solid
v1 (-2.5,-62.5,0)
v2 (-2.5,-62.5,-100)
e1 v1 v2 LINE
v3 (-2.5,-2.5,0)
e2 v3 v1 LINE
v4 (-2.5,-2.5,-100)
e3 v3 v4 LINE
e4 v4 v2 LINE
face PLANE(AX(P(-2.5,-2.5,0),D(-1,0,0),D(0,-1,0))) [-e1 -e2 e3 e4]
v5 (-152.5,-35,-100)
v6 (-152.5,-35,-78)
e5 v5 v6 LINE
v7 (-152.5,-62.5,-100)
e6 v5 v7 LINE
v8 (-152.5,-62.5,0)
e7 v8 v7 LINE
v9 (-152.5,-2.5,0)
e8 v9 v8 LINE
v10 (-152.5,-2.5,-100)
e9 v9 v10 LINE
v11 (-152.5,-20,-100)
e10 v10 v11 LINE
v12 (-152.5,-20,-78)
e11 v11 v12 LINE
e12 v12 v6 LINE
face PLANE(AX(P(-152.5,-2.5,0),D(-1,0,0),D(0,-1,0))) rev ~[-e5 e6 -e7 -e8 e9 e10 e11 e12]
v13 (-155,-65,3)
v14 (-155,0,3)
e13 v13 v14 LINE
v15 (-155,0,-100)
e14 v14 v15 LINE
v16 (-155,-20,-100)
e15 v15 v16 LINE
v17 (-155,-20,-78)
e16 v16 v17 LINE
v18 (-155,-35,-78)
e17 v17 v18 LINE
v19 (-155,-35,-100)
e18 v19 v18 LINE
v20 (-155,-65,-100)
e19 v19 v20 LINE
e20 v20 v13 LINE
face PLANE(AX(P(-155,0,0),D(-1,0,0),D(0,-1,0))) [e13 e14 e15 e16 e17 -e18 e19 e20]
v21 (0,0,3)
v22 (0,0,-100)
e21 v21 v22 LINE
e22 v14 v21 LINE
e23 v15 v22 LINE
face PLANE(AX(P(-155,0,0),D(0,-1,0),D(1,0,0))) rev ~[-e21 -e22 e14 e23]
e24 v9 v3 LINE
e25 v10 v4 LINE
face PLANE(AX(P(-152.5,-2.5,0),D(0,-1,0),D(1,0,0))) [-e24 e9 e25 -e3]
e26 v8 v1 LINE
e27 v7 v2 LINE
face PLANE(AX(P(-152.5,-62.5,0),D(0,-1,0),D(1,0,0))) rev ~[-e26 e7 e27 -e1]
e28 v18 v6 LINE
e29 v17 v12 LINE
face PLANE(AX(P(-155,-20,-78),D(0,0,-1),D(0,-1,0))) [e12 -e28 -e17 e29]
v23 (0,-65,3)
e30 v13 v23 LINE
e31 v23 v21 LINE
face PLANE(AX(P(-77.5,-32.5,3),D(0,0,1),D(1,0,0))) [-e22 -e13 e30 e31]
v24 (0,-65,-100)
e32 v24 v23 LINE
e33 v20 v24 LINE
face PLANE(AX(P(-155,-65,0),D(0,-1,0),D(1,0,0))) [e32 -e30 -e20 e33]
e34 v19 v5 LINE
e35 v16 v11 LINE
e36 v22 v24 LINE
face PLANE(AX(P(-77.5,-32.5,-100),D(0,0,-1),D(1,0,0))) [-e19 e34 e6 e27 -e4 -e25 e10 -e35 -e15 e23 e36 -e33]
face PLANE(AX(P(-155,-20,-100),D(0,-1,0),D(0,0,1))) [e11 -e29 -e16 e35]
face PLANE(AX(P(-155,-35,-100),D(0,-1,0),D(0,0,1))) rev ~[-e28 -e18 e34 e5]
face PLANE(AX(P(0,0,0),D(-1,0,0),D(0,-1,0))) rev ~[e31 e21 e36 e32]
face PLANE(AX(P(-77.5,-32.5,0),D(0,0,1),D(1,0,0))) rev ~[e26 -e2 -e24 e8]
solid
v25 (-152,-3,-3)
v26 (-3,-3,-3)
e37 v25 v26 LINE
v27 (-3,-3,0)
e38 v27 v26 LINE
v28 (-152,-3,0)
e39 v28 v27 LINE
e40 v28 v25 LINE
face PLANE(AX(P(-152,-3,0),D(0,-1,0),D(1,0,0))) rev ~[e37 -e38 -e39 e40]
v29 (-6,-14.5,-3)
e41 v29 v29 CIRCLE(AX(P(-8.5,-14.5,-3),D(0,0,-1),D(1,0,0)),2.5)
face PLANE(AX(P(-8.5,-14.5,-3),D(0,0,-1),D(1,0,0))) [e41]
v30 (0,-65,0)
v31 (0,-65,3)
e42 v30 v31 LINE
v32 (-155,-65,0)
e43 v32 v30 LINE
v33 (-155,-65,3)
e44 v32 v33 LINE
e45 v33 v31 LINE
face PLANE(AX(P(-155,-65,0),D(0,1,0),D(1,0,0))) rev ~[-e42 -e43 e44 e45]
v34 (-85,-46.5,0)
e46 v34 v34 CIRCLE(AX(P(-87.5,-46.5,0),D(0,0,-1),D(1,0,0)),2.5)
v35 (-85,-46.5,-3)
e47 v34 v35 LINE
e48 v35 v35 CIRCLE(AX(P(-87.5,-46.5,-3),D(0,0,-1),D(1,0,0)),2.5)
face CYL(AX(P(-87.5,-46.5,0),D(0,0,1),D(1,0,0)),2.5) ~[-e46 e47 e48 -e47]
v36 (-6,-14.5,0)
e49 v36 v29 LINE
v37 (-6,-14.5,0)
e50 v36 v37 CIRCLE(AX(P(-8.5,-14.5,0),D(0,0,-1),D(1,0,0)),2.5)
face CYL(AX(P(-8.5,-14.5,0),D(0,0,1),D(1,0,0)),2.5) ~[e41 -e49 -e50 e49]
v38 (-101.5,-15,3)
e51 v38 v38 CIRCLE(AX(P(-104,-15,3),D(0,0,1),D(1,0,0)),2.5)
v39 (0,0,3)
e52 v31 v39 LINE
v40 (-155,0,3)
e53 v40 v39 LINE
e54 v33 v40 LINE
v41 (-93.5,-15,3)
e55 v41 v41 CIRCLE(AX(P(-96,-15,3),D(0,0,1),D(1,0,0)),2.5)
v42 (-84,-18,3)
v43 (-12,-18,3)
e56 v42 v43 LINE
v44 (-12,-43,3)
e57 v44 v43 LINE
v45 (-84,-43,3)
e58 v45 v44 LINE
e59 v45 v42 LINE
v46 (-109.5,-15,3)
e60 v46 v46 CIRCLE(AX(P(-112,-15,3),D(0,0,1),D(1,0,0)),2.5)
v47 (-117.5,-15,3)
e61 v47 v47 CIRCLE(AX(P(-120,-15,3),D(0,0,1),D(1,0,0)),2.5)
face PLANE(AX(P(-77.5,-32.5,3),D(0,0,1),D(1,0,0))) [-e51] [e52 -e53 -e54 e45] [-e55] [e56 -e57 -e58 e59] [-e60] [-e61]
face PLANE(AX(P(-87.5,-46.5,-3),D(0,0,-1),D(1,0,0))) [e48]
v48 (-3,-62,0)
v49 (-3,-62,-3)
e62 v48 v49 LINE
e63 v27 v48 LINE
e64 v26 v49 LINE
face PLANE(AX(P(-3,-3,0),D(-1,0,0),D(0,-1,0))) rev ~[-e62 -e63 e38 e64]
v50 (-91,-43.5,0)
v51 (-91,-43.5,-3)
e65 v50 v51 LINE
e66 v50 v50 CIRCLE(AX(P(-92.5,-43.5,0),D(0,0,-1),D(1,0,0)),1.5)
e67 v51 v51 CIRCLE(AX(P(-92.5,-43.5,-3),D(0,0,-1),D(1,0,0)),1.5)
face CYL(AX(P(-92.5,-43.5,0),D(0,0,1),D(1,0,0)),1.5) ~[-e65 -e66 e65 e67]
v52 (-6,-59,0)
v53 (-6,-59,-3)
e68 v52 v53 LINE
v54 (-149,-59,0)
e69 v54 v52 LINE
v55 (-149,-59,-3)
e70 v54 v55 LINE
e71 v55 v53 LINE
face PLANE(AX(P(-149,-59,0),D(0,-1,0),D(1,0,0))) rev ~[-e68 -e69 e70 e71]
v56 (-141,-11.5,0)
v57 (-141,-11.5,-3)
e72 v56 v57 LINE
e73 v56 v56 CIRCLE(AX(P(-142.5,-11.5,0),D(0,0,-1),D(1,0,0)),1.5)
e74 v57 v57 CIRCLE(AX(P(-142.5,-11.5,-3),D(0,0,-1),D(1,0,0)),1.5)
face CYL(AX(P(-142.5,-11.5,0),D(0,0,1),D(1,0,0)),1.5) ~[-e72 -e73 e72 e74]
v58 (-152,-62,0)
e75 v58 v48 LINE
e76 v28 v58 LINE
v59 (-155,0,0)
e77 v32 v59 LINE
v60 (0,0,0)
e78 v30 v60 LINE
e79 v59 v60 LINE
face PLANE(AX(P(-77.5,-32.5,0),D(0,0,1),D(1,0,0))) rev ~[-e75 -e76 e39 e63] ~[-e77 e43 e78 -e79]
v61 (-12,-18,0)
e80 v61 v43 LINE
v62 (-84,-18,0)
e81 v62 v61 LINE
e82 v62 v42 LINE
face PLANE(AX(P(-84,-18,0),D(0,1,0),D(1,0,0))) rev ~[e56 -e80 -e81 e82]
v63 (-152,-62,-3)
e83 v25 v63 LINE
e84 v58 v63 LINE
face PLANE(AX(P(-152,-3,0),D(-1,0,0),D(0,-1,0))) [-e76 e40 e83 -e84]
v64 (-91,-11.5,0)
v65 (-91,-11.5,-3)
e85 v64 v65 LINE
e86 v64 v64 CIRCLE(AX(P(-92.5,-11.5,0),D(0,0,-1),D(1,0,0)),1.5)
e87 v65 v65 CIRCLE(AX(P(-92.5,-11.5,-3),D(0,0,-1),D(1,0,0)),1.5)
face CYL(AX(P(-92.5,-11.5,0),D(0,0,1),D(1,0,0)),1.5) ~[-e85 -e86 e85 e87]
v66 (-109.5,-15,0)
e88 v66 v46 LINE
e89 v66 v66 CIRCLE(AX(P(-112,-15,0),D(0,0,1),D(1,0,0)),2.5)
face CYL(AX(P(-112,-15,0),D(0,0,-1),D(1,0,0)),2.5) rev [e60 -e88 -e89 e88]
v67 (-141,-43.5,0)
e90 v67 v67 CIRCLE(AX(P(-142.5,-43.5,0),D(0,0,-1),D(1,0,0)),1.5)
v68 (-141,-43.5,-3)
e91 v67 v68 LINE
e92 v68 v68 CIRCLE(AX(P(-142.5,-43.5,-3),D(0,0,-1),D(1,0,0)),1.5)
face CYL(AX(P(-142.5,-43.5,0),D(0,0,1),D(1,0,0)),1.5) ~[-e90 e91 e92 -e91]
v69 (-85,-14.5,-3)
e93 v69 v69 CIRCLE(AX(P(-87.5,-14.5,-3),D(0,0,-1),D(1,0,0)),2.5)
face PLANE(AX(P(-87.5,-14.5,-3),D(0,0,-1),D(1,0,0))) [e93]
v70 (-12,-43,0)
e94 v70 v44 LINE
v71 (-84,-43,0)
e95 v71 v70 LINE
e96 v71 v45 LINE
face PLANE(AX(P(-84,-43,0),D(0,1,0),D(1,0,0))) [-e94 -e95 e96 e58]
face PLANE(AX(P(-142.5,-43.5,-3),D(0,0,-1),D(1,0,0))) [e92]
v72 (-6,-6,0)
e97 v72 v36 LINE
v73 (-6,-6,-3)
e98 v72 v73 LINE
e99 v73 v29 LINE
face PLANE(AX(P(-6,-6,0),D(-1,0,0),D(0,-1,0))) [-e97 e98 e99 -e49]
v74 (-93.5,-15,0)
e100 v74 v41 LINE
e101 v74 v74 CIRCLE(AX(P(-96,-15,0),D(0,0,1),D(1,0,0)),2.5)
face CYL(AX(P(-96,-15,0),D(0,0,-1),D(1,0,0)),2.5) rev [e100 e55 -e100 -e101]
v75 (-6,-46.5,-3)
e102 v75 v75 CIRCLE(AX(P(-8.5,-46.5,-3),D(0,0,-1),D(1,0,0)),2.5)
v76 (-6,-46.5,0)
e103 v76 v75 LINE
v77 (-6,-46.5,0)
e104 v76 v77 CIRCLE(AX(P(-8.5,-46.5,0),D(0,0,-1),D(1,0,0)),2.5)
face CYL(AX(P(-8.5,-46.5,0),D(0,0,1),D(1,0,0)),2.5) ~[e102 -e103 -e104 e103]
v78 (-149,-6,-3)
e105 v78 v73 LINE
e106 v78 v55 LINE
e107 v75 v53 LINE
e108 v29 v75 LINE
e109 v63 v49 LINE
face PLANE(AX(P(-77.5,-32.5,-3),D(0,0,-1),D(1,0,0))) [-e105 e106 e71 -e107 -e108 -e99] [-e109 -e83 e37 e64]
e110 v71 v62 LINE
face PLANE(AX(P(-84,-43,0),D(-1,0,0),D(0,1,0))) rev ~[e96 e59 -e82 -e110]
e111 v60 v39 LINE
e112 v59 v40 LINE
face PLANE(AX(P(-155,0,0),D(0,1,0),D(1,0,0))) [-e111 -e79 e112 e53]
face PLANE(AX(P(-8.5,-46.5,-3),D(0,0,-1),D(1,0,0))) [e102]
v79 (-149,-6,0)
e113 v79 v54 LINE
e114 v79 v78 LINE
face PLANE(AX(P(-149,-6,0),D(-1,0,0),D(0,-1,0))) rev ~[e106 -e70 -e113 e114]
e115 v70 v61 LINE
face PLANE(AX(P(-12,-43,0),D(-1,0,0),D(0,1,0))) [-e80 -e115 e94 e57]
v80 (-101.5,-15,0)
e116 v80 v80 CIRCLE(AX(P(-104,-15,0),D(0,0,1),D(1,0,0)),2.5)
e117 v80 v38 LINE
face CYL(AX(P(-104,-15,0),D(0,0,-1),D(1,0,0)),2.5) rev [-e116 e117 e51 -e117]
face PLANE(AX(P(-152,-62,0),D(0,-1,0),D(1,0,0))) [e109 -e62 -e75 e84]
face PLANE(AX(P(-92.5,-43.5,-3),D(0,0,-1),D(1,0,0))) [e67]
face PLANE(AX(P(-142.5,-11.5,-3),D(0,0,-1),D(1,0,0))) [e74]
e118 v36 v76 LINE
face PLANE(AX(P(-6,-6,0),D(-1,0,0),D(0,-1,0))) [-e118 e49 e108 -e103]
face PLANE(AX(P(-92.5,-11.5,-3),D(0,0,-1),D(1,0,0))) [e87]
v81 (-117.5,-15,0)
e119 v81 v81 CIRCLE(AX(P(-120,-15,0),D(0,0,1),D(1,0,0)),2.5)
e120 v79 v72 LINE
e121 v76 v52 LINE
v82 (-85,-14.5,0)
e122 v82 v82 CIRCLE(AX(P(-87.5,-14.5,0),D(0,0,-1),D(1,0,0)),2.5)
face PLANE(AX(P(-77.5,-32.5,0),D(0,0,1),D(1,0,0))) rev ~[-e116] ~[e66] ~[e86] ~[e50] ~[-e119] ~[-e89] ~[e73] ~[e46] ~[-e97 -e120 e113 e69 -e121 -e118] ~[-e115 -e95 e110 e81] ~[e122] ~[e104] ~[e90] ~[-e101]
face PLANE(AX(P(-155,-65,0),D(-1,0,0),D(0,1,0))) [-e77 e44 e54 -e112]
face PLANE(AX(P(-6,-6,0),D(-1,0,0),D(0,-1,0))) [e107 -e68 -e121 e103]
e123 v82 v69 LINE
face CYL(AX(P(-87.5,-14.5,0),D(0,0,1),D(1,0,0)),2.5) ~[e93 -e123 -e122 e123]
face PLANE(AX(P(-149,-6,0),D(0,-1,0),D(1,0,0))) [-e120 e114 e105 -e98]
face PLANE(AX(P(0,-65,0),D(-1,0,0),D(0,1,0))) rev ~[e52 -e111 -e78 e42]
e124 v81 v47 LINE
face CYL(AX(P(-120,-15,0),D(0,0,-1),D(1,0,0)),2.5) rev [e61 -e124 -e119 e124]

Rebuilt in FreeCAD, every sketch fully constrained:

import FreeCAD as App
import Part
import Sketcher
from FreeCAD import Vector
Q = App.Units.Quantity

doc = App.newDocument("Part")
body = doc.addObject("PartDesign::Body", "Body")

# Sketch on XY plane
sketch1 = doc.addObject("Sketcher::SketchObject", "Sketch")
body.addObject(sketch1)
sketch1.AttachmentSupport = (doc.XY_Plane, [""])
sketch1.MapMode = "FlatFace"
sketch1.addGeometry([
    Part.LineSegment(Vector(-155, 0, 0), Vector(-155, -65, 0)),  # 0
    Part.LineSegment(Vector(-155, -65, 0), Vector(0, -65, 0)),  # 1
    Part.LineSegment(Vector(0, -65, 0), Vector(0, 0, 0)),  # 2
    Part.LineSegment(Vector(0, 0, 0), Vector(-155, 0, 0)),  # 3
    Part.LineSegment(Vector(-12, -43, 0), Vector(-84, -43, 0)),  # 4
    Part.LineSegment(Vector(-84, -43, 0), Vector(-84, -18, 0)),  # 5
    Part.LineSegment(Vector(-84, -18, 0), Vector(-12, -18, 0)),  # 6
    Part.LineSegment(Vector(-12, -18, 0), Vector(-12, -43, 0)),  # 7
    Part.Circle(Vector(-120, -15, 0), Vector(0, 0, 1), 2.5),  # 8
    Part.Circle(Vector(-112, -15, 0), Vector(0, 0, 1), 2.5),  # 9
    Part.Circle(Vector(-104, -15, 0), Vector(0, 0, 1), 2.5),  # 10
    Part.Circle(Vector(-96, -15, 0), Vector(0, 0, 1), 2.5),  # 11
], False)
sketch1.addConstraint([
    Sketcher.Constraint("Coincident", 0, 2, 1, 1),
    Sketcher.Constraint("Coincident", 1, 2, 2, 1),
    Sketcher.Constraint("Coincident", 2, 2, 3, 1),
    Sketcher.Constraint("Coincident", 3, 2, 0, 1),
    Sketcher.Constraint("Coincident", 4, 2, 5, 1),
    Sketcher.Constraint("Coincident", 5, 2, 6, 1),
    Sketcher.Constraint("Coincident", 6, 2, 7, 1),
    Sketcher.Constraint("Coincident", 7, 2, 4, 1),
    Sketcher.Constraint("Vertical", 0),
    Sketcher.Constraint("Horizontal", 1),
    Sketcher.Constraint("Vertical", 2),
    Sketcher.Constraint("Horizontal", 3),
    Sketcher.Constraint("Horizontal", 4),
    Sketcher.Constraint("Vertical", 5),
    Sketcher.Constraint("Horizontal", 6),
    Sketcher.Constraint("Vertical", 7),
    Sketcher.Constraint("Coincident", 2, 2, -1, 1),
    Sketcher.Constraint("Equal", 8, 9),
    Sketcher.Constraint("Equal", 9, 10),
    Sketcher.Constraint("Equal", 10, 11),
    Sketcher.Constraint("Horizontal", 8, 3, 9, 3),
    Sketcher.Constraint("Horizontal", 9, 3, 10, 3),
    Sketcher.Constraint("Horizontal", 10, 3, 11, 3),
    Sketcher.Constraint("Diameter", 8, Q("5 mm")),
    Sketcher.Constraint("DistanceX", 1, 1, 1, 2, Q("155 mm")),
    Sketcher.Constraint("DistanceX", 4, 2, 4, 1, Q("72 mm")),
    Sketcher.Constraint("DistanceY", 0, 2, 0, 1, Q("65 mm")),
    Sketcher.Constraint("DistanceY", 5, 1, 5, 2, Q("25 mm")),
    Sketcher.Constraint("DistanceX", 8, 3, -1, 1, Q("120 mm")),
    Sketcher.Constraint("DistanceY", 8, 3, -1, 1, Q("15 mm")),
    Sketcher.Constraint("DistanceX", 9, 3, -1, 1, Q("112 mm")),
    Sketcher.Constraint("DistanceX", 10, 3, -1, 1, Q("104 mm")),
    Sketcher.Constraint("DistanceX", 11, 3, -1, 1, Q("96 mm")),
    Sketcher.Constraint("DistanceX", 4, 2, -1, 1, Q("84 mm")),
    Sketcher.Constraint("DistanceY", 4, 2, -1, 1, Q("43 mm")),
])
pad1 = doc.addObject("PartDesign::Pad", "Pad")
body.addObject(pad1)
pad1.Profile = sketch1
pad1.Length = 3

# Sketch on XY plane
sketch2 = doc.addObject("Sketcher::SketchObject", "Sketch001")
body.addObject(sketch2)
sketch2.AttachmentSupport = (doc.XY_Plane, [""])
sketch2.MapMode = "FlatFace"
sketch2.addGeometry([
    Part.LineSegment(Vector(-152, -62, 0), Vector(-152, -3, 0)),  # 0
    Part.LineSegment(Vector(-152, -3, 0), Vector(-3, -3, 0)),  # 1
    Part.LineSegment(Vector(-3, -3, 0), Vector(-3, -62, 0)),  # 2
    Part.LineSegment(Vector(-3, -62, 0), Vector(-152, -62, 0)),  # 3
    Part.LineSegment(Vector(-6, -6, 0), Vector(-149, -6, 0)),  # 4
    Part.LineSegment(Vector(-149, -6, 0), Vector(-149, -59, 0)),  # 5
    Part.LineSegment(Vector(-149, -59, 0), Vector(-6, -59, 0)),  # 6
    Part.LineSegment(Vector(-6, -59, 0), Vector(-6, -6, 0)),  # 7
], False)
sketch2.addConstraint([
    Sketcher.Constraint("Coincident", 0, 2, 1, 1),
    Sketcher.Constraint("Coincident", 1, 2, 2, 1),
    Sketcher.Constraint("Coincident", 2, 2, 3, 1),
    Sketcher.Constraint("Coincident", 3, 2, 0, 1),
    Sketcher.Constraint("Coincident", 4, 2, 5, 1),
    Sketcher.Constraint("Coincident", 5, 2, 6, 1),
    Sketcher.Constraint("Coincident", 6, 2, 7, 1),
    Sketcher.Constraint("Coincident", 7, 2, 4, 1),
    Sketcher.Constraint("Vertical", 0),
    Sketcher.Constraint("Horizontal", 1),
    Sketcher.Constraint("Vertical", 2),
    Sketcher.Constraint("Horizontal", 3),
    Sketcher.Constraint("Horizontal", 4),
    Sketcher.Constraint("Vertical", 5),
    Sketcher.Constraint("Horizontal", 6),
    Sketcher.Constraint("Vertical", 7),
    Sketcher.Constraint("DistanceX", 1, 1, 1, 2, Q("149 mm")),
    Sketcher.Constraint("DistanceX", 4, 2, 4, 1, Q("143 mm")),
    Sketcher.Constraint("DistanceY", 0, 1, 0, 2, Q("59 mm")),
    Sketcher.Constraint("DistanceY", 5, 2, 5, 1, Q("53 mm")),
    Sketcher.Constraint("DistanceX", 0, 2, -1, 1, Q("152 mm")),
    Sketcher.Constraint("DistanceY", 0, 2, -1, 1, Q("3 mm")),
    Sketcher.Constraint("DistanceX", 4, 2, -1, 1, Q("149 mm")),
    Sketcher.Constraint("DistanceY", 4, 2, -1, 1, Q("6 mm")),
])
pad2 = doc.addObject("PartDesign::Pad", "Pad001")
body.addObject(pad2)
pad2.Profile = sketch2
pad2.Length = 3
pad2.Reversed = True

# Sketch on XY plane
sketch3 = doc.addObject("Sketcher::SketchObject", "Sketch002")
body.addObject(sketch3)
sketch3.AttachmentSupport = (doc.XY_Plane, [""])
sketch3.MapMode = "FlatFace"
sketch3.addGeometry([
    Part.Circle(Vector(-142.5, -43.5, 0), Vector(0, 0, 1), 1.5),  # 0
    Part.Circle(Vector(-142.5, -11.5, 0), Vector(0, 0, 1), 1.5),  # 1
    Part.Circle(Vector(-92.5, -43.5, 0), Vector(0, 0, 1), 1.5),  # 2
    Part.Circle(Vector(-92.5, -11.5, 0), Vector(0, 0, 1), 1.5),  # 3
    Part.Circle(Vector(-87.5, -46.5, 0), Vector(0, 0, 1), 2.5),  # 4
    Part.Circle(Vector(-8.5, -46.5, 0), Vector(0, 0, 1), 2.5),  # 5
    Part.Circle(Vector(-8.5, -14.5, 0), Vector(0, 0, 1), 2.5),  # 6
    Part.Circle(Vector(-87.5, -14.5, 0), Vector(0, 0, 1), 2.5),  # 7
], False)
sketch3.addConstraint([
    Sketcher.Constraint("Equal", 0, 1),
    Sketcher.Constraint("Equal", 1, 2),
    Sketcher.Constraint("Equal", 2, 3),
    Sketcher.Constraint("Equal", 4, 5),
    Sketcher.Constraint("Equal", 5, 6),
    Sketcher.Constraint("Equal", 6, 7),
    Sketcher.Constraint("Horizontal", 0, 3, 2, 3),
    Sketcher.Constraint("Horizontal", 1, 3, 3, 3),
    Sketcher.Constraint("Horizontal", 4, 3, 5, 3),
    Sketcher.Constraint("Horizontal", 6, 3, 7, 3),
    Sketcher.Constraint("Vertical", 0, 3, 1, 3),
    Sketcher.Constraint("Vertical", 2, 3, 3, 3),
    Sketcher.Constraint("Vertical", 5, 3, 6, 3),
    Sketcher.Constraint("Vertical", 4, 3, 7, 3),
    Sketcher.Constraint("Diameter", 0, Q("3 mm")),
    Sketcher.Constraint("Diameter", 4, Q("5 mm")),
    Sketcher.Constraint("DistanceY", 0, 3, 1, 3, Q("32 mm")),
    Sketcher.Constraint("DistanceX", 0, 3, 2, 3, Q("50 mm")),
    Sketcher.Constraint("DistanceX", 2, 3, 4, 3, Q("5 mm")),
    Sketcher.Constraint("DistanceY", 4, 3, 2, 3, Q("3 mm")),
    Sketcher.Constraint("DistanceX", 4, 3, 5, 3, Q("79 mm")),
    Sketcher.Constraint("DistanceY", 5, 3, 6, 3, Q("32 mm")),
    Sketcher.Constraint("DistanceX", 0, 3, -1, 1, Q("142.5 mm")),
    Sketcher.Constraint("DistanceY", 0, 3, -1, 1, Q("43.5 mm")),
])
pad3 = doc.addObject("PartDesign::Pad", "Pad002")
body.addObject(pad3)
pad3.Profile = sketch3
pad3.Length = 3
pad3.Reversed = True
body2 = doc.addObject("PartDesign::Body", "Body001")

# Sketch on XY plane
sketch4 = doc.addObject("Sketcher::SketchObject", "Sketch003")
body2.addObject(sketch4)
sketch4.AttachmentSupport = (doc.getObject("XY_Plane001"), [""])
sketch4.MapMode = "FlatFace"
sketch4.addGeometry([
    Part.LineSegment(Vector(-155, 0, 0), Vector(-155, -65, 0)),
    Part.LineSegment(Vector(-155, -65, 0), Vector(0, -65, 0)),
    Part.LineSegment(Vector(0, -65, 0), Vector(0, 0, 0)),
    Part.LineSegment(Vector(0, 0, 0), Vector(-155, 0, 0)),
], False)
sketch4.addConstraint([
    Sketcher.Constraint("Coincident", 0, 2, 1, 1),
    Sketcher.Constraint("Coincident", 1, 2, 2, 1),
    Sketcher.Constraint("Coincident", 2, 2, 3, 1),
    Sketcher.Constraint("Coincident", 3, 2, 0, 1),
    Sketcher.Constraint("Vertical", 0),
    Sketcher.Constraint("Horizontal", 1),
    Sketcher.Constraint("Vertical", 2),
    Sketcher.Constraint("Horizontal", 3),
    Sketcher.Constraint("Coincident", 2, 2, -1, 1),
    Sketcher.Constraint("DistanceX", 1, 1, 1, 2, Q("155 mm")),
    Sketcher.Constraint("DistanceY", 0, 2, 0, 1, Q("65 mm")),
])
pad4 = doc.addObject("PartDesign::Pad", "Pad003")
body2.addObject(pad4)
pad4.Profile = sketch4
pad4.Length = 3

# Sketch on XY plane
sketch5 = doc.addObject("Sketcher::SketchObject", "Sketch004")
body2.addObject(sketch5)
sketch5.AttachmentSupport = (doc.getObject("XY_Plane001"), [""])
sketch5.MapMode = "FlatFace"
sketch5.addGeometry([
    Part.LineSegment(Vector(-155, -65, 0), Vector(-155, 0, 0)),  # 0
    Part.LineSegment(Vector(-155, 0, 0), Vector(0, 0, 0)),  # 1
    Part.LineSegment(Vector(0, 0, 0), Vector(0, -65, 0)),  # 2
    Part.LineSegment(Vector(0, -65, 0), Vector(-155, -65, 0)),  # 3
    Part.LineSegment(Vector(-2, -2, 0), Vector(-152, -2, 0)),  # 4
    Part.LineSegment(Vector(-152, -2, 0), Vector(-152, -62, 0)),  # 5
    Part.LineSegment(Vector(-152, -62, 0), Vector(-2, -62, 0)),  # 6
    Part.LineSegment(Vector(-2, -62, 0), Vector(-2, -2, 0)),  # 7
], False)
sketch5.addConstraint([
    Sketcher.Constraint("Coincident", 0, 2, 1, 1),
    Sketcher.Constraint("Coincident", 1, 2, 2, 1),
    Sketcher.Constraint("Coincident", 2, 2, 3, 1),
    Sketcher.Constraint("Coincident", 3, 2, 0, 1),
    Sketcher.Constraint("Coincident", 4, 2, 5, 1),
    Sketcher.Constraint("Coincident", 5, 2, 6, 1),
    Sketcher.Constraint("Coincident", 6, 2, 7, 1),
    Sketcher.Constraint("Coincident", 7, 2, 4, 1),
    Sketcher.Constraint("Vertical", 0),
    Sketcher.Constraint("Horizontal", 1),
    Sketcher.Constraint("Vertical", 2),
    Sketcher.Constraint("Horizontal", 3),
    Sketcher.Constraint("Horizontal", 4),
    Sketcher.Constraint("Vertical", 5),
    Sketcher.Constraint("Horizontal", 6),
    Sketcher.Constraint("Vertical", 7),
    Sketcher.Constraint("Coincident", 1, 2, -1, 1),
    Sketcher.Constraint("DistanceX", 1, 1, 1, 2, Q("155 mm")),
    Sketcher.Constraint("DistanceX", 4, 2, 4, 1, Q("150 mm")),
    Sketcher.Constraint("DistanceY", 0, 1, 0, 2, Q("65 mm")),
    Sketcher.Constraint("DistanceY", 5, 2, 5, 1, Q("60 mm")),
    Sketcher.Constraint("DistanceX", 4, 2, -1, 1, Q("152.5 mm")),
    Sketcher.Constraint("DistanceY", 4, 2, -1, 1, Q("2.5 mm")),
])
pad5 = doc.addObject("PartDesign::Pad", "Pad004")
body2.addObject(pad5)
pad5.Profile = sketch5
pad5.Length = 100
pad5.Reversed = True

# Sketch on YZ plane
sketch6 = doc.addObject("Sketcher::SketchObject", "Sketch005")
body2.addObject(sketch6)
sketch6.AttachmentSupport = (doc.getObject("YZ_Plane001"), [""])
sketch6.MapMode = "FlatFace"
sketch6.AttachmentOffset = App.Placement(Vector(0, 0, -155), App.Rotation())
sketch6.addGeometry([
    Part.LineSegment(Vector(-20, -78, 0), Vector(-20, -100, 0)),
    Part.LineSegment(Vector(-20, -100, 0), Vector(-35, -100, 0)),
    Part.LineSegment(Vector(-35, -100, 0), Vector(-35, -78, 0)),
    Part.LineSegment(Vector(-35, -78, 0), Vector(-20, -78, 0)),
], False)
sketch6.addConstraint([
    Sketcher.Constraint("Coincident", 0, 2, 1, 1),
    Sketcher.Constraint("Coincident", 1, 2, 2, 1),
    Sketcher.Constraint("Coincident", 2, 2, 3, 1),
    Sketcher.Constraint("Coincident", 3, 2, 0, 1),
    Sketcher.Constraint("Vertical", 0),
    Sketcher.Constraint("Horizontal", 1),
    Sketcher.Constraint("Vertical", 2),
    Sketcher.Constraint("Horizontal", 3),
    Sketcher.Constraint("DistanceX", 1, 2, 1, 1, Q("15 mm")),
    Sketcher.Constraint("DistanceY", 0, 2, 0, 1, Q("22 mm")),
    Sketcher.Constraint("DistanceX", 0, 2, -1, 1, Q("20 mm")),
    Sketcher.Constraint("DistanceY", 0, 2, -1, 1, Q("100 mm")),
])
pocket1 = doc.addObject("PartDesign::Pocket", "Pocket")
body2.addObject(pocket1)
pocket1.Profile = sketch6
pocket1.Length = 5
pocket1.Reversed = True

doc.recompute()
